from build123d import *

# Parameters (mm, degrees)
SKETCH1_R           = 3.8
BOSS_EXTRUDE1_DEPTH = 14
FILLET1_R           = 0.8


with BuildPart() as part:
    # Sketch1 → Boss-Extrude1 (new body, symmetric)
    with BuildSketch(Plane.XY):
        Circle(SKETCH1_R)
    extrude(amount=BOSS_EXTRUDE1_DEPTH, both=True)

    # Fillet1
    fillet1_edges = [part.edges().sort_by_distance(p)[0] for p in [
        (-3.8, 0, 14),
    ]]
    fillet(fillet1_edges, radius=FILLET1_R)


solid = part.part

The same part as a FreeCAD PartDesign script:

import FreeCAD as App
import Part
import Sketcher
Q = App.Units.Quantity


def edges_at(feature, points):
    """Names of the edges that pass closest to the given points."""
    edges = feature.Shape.Edges
    near = lambda p: min(range(len(edges)), key=lambda i: edges[i].distToShape(Part.Vertex(*p))[0])
    return sorted({f"Edge{near(p) + 1}" for p in points})

doc = App.newDocument("Part")
body = doc.addObject("PartDesign::Body", "Body")

sketch1 = body.newObject("Sketcher::SketchObject", "Sketch")
sketch1.AttachmentSupport = (doc.getObject("XY_Plane"), [""])
sketch1.MapMode = "FlatFace"
sketch1.addGeometry(Part.Circle(App.Vector(0, 0, 0), App.Vector(0, 0, 1), 3.8), False)
sketch1.addConstraint([
    Sketcher.Constraint("Coincident", 0, 3, -1, 1),
    Sketcher.Constraint("Diameter", 0, Q("7.6 mm")),
])
pad1 = body.newObject("PartDesign::Pad", "Pad")
pad1.Profile = sketch1
pad1.Length = 28
pad1.Midplane = True
doc.recompute()

fillet = body.newObject("PartDesign::Fillet", "Fillet")
fillet.Base = (pad1, edges_at(pad1, [(-3.8, 0, 14)]))
fillet.Radius = 0.8

doc.recompute()
